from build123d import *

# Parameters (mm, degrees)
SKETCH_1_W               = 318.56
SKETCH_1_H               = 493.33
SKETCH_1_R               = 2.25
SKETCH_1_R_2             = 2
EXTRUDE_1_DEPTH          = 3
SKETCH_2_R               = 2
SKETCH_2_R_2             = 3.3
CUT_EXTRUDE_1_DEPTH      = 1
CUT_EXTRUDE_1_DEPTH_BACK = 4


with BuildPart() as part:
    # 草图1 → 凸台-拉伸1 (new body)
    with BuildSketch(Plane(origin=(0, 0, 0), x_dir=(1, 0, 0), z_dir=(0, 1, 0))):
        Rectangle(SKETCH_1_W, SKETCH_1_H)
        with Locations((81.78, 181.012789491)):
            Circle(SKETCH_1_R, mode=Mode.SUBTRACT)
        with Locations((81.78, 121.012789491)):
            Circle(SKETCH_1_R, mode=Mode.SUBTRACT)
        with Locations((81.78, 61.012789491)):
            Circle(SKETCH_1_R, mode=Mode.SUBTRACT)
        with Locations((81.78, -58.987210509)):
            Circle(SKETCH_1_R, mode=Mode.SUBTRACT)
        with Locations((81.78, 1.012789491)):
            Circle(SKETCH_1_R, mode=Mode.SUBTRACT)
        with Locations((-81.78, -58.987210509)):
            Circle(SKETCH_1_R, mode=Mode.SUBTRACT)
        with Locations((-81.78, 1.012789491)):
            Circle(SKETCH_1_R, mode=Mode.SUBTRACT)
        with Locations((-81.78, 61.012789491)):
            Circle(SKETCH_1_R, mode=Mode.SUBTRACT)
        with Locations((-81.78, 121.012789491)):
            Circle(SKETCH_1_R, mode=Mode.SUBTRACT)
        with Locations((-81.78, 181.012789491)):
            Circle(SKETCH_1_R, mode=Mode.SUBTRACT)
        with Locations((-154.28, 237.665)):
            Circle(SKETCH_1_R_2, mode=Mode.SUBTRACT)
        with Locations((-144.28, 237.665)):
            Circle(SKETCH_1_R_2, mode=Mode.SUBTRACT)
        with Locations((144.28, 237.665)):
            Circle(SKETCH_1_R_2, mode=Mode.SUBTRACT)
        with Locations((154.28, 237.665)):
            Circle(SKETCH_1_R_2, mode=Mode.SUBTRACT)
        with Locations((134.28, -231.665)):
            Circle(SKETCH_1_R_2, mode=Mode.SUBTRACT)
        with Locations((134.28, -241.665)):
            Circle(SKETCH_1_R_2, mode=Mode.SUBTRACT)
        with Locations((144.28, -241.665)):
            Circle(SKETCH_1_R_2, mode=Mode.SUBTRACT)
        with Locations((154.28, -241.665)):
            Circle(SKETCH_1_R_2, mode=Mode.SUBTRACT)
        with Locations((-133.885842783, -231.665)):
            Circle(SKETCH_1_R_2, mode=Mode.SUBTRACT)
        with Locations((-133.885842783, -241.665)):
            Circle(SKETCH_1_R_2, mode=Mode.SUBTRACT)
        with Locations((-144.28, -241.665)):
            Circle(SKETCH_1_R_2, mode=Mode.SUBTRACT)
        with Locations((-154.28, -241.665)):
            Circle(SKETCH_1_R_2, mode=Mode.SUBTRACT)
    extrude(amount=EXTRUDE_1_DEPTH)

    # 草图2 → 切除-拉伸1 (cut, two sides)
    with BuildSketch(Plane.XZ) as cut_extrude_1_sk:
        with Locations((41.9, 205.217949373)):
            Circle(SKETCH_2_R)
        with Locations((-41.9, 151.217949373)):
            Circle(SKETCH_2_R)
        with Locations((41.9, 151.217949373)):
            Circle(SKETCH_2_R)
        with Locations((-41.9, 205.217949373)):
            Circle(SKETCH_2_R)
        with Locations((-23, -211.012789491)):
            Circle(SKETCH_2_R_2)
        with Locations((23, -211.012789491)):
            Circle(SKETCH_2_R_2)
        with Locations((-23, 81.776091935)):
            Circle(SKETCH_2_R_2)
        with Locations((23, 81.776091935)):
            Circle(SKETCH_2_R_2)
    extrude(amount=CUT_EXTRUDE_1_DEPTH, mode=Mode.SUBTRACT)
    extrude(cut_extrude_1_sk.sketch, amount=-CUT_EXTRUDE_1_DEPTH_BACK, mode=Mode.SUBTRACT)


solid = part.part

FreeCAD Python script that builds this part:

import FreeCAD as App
import Part
import Sketcher
Q = App.Units.Quantity

doc = App.newDocument("Part")
body = doc.addObject("PartDesign::Body", "Body")

sketch1 = body.newObject("Sketcher::SketchObject", "Sketch")
sketch1.AttachmentSupport = (doc.getObject("XZ_Plane"), [""])
sketch1.MapMode = "FlatFace"
sketch1.addGeometry([
    Part.LineSegment(App.Vector(-159.28, -246.665, 0), App.Vector(-159.28, 246.665, 0)),
    Part.LineSegment(App.Vector(-159.28, 246.665, 0), App.Vector(159.28, 246.665, 0)),
    Part.LineSegment(App.Vector(159.28, 246.665, 0), App.Vector(159.28, -246.665, 0)),
    Part.LineSegment(App.Vector(159.28, -246.665, 0), App.Vector(-159.28, -246.665, 0)),
    Part.Circle(App.Vector(-154.28, 241.665, 0), App.Vector(0, 0, 1), 2),
    Part.Circle(App.Vector(-144.28, 241.665, 0), App.Vector(0, 0, 1), 2),
    Part.Circle(App.Vector(-133.885843, 241.665, 0), App.Vector(0, 0, 1), 2),
    Part.Circle(App.Vector(-133.885843, 231.665, 0), App.Vector(0, 0, 1), 2),
    Part.Circle(App.Vector(-81.78, 58.987211, 0), App.Vector(0, 0, 1), 2.25),
    Part.Circle(App.Vector(134.28, 241.665, 0), App.Vector(0, 0, 1), 2),
    Part.Circle(App.Vector(134.28, 231.665, 0), App.Vector(0, 0, 1), 2),
    Part.Circle(App.Vector(144.28, 241.665, 0), App.Vector(0, 0, 1), 2),
    Part.Circle(App.Vector(154.28, 241.665, 0), App.Vector(0, 0, 1), 2),
    Part.Circle(App.Vector(81.78, 58.987211, 0), App.Vector(0, 0, 1), 2.25),
    Part.Circle(App.Vector(-81.78, -1.012789, 0), App.Vector(0, 0, 1), 2.25),
    Part.Circle(App.Vector(-81.78, -61.012789, 0), App.Vector(0, 0, 1), 2.25),
    Part.Circle(App.Vector(-81.78, -121.012789, 0), App.Vector(0, 0, 1), 2.25),
    Part.Circle(App.Vector(-154.28, -237.665, 0), App.Vector(0, 0, 1), 2),
    Part.Circle(App.Vector(-144.28, -237.665, 0), App.Vector(0, 0, 1), 2),
    Part.Circle(App.Vector(-81.78, -181.012789, 0), App.Vector(0, 0, 1), 2.25),
    Part.Circle(App.Vector(81.78, -1.012789, 0), App.Vector(0, 0, 1), 2.25),
    Part.Circle(App.Vector(81.78, -61.012789, 0), App.Vector(0, 0, 1), 2.25),
    Part.Circle(App.Vector(81.78, -121.012789, 0), App.Vector(0, 0, 1), 2.25),
    Part.Circle(App.Vector(81.78, -181.012789, 0), App.Vector(0, 0, 1), 2.25),
    Part.Circle(App.Vector(144.28, -237.665, 0), App.Vector(0, 0, 1), 2),
    Part.Circle(App.Vector(154.28, -237.665, 0), App.Vector(0, 0, 1), 2),
], False)
sketch1.addConstraint([
    Sketcher.Constraint("Coincident", 0, 2, 1, 1),
    Sketcher.Constraint("Coincident", 1, 2, 2, 1),
    Sketcher.Constraint("Coincident", 2, 2, 3, 1),
    Sketcher.Constraint("Coincident", 3, 2, 0, 1),
    Sketcher.Constraint("Vertical", 0),
    Sketcher.Constraint("Horizontal", 1),
    Sketcher.Constraint("Vertical", 2),
    Sketcher.Constraint("Horizontal", 3),
    Sketcher.Constraint("Equal", 4, 5),
    Sketcher.Constraint("Equal", 5, 6),
    Sketcher.Constraint("Equal", 6, 7),
    Sketcher.Constraint("Equal", 7, 9),
    Sketcher.Constraint("Equal", 9, 10),
    Sketcher.Constraint("Equal", 10, 11),
    Sketcher.Constraint("Equal", 11, 12),
    Sketcher.Constraint("Equal", 8, 13),
    Sketcher.Constraint("Equal", 13, 14),
    Sketcher.Constraint("Equal", 14, 15),
    Sketcher.Constraint("Equal", 15, 16),
    Sketcher.Constraint("Equal", 12, 17),
    Sketcher.Constraint("Equal", 17, 18),
    Sketcher.Constraint("Equal", 16, 19),
    Sketcher.Constraint("Equal", 19, 20),
    Sketcher.Constraint("Equal", 20, 21),
    Sketcher.Constraint("Equal", 21, 22),
    Sketcher.Constraint("Equal", 22, 23),
    Sketcher.Constraint("Equal", 18, 24),
    Sketcher.Constraint("Equal", 24, 25),
    Sketcher.Constraint("Symmetric", 0, 2, 2, 2, -1, 1),
    Sketcher.Constraint("Symmetric", 5, 3, 11, 3, -2),
    Sketcher.Constraint("Symmetric", 4, 3, 12, 3, -2),
    Sketcher.Constraint("Symmetric", 8, 3, 13, 3, -2),
    Sketcher.Constraint("Symmetric", 14, 3, 20, 3, -2),
    Sketcher.Constraint("Symmetric", 15, 3, 21, 3, -2),
    Sketcher.Constraint("Symmetric", 16, 3, 22, 3, -2),
    Sketcher.Constraint("Symmetric", 19, 3, 23, 3, -2),
    Sketcher.Constraint("Symmetric", 18, 3, 24, 3, -2),
    Sketcher.Constraint("Symmetric", 17, 3, 25, 3, -2),
    Sketcher.Constraint("Horizontal", 4, 3, 5, 3),
    Sketcher.Constraint("Horizontal", 5, 3, 6, 3),
    Sketcher.Constraint("Horizontal", 6, 3, 9, 3),
    Sketcher.Constraint("Horizontal", 7, 3, 10, 3),
    Sketcher.Constraint("Horizontal", 17, 3, 18, 3),
    Sketcher.Constraint("Vertical", 6, 3, 7, 3),
    Sketcher.Constraint("Vertical", 9, 3, 10, 3),
    Sketcher.Constraint("Vertical", 8, 3, 14, 3),
    Sketcher.Constraint("Vertical", 14, 3, 15, 3),
    Sketcher.Constraint("Vertical", 15, 3, 16, 3),
    Sketcher.Constraint("Vertical", 4, 3, 17, 3),
    Sketcher.Constraint("Vertical", 5, 3, 18, 3),
    Sketcher.Constraint("Vertical", 16, 3, 19, 3),
    Sketcher.Constraint("Diameter", 4, Q("4 mm")),
    Sketcher.Constraint("Diameter", 8, Q("4.5 mm")),
    Sketcher.Constraint("DistanceX", 4, 3, 5, 3, Q("10 mm")),
    Sketcher.Constraint("DistanceY", 7, 3, 6, 3, Q("10 mm")),
    Sketcher.Constraint("DistanceX", 9, 3, 11, 3, Q("10 mm")),
    Sketcher.Constraint("DistanceY", 14, 3, 8, 3, Q("60 mm")),
    Sketcher.Constraint("DistanceY", 15, 3, 14, 3, Q("60 mm")),
    Sketcher.Constraint("DistanceY", 16, 3, 15, 3, Q("60 mm")),
    Sketcher.Constraint("DistanceY", 19, 3, 16, 3, Q("60 mm")),
    Sketcher.Constraint("DistanceX", 0, 2, 4, 3, Q("5 mm")),
    Sketcher.Constraint("DistanceY", 4, 3, 0, 2, Q("5 mm")),
    Sketcher.Constraint("DistanceY", 2, 2, 25, 3, Q("9 mm")),
    Sketcher.Constraint("DistanceX", 1, 1, 1, 2, Q("318.56 mm")),
    Sketcher.Constraint("DistanceY", 0, 1, 0, 2, Q("493.33 mm")),
    Sketcher.Constraint("DistanceX", 5, 3, 8, 3, Q("62.5 mm")),
    Sketcher.Constraint("DistanceY", -1, 1, 8, 3, Q("58.987211 mm")),
    Sketcher.Constraint("DistanceX", 6, 3, -1, 1, Q("133.885843 mm")),
])
pad1 = body.newObject("PartDesign::Pad", "Pad")
pad1.Profile = sketch1
pad1.Length = 3
pad1.Reversed = True

sketch2 = body.newObject("Sketcher::SketchObject", "Sketch001")
sketch2.AttachmentSupport = (doc.getObject("XZ_Plane"), [""])
sketch2.MapMode = "FlatFace"
sketch2.addGeometry([
    Part.Circle(App.Vector(41.9, 205.217949, 0), App.Vector(0, 0, 1), 2),
    Part.Circle(App.Vector(-41.9, 151.217949, 0), App.Vector(0, 0, 1), 2),
    Part.Circle(App.Vector(41.9, 151.217949, 0), App.Vector(0, 0, 1), 2),
    Part.Circle(App.Vector(-41.9, 205.217949, 0), App.Vector(0, 0, 1), 2),
    Part.Circle(App.Vector(-23, -211.012789, 0), App.Vector(0, 0, 1), 3.3),
    Part.Circle(App.Vector(23, -211.012789, 0), App.Vector(0, 0, 1), 3.3),
    Part.Circle(App.Vector(-23, 81.776092, 0), App.Vector(0, 0, 1), 3.3),
    Part.Circle(App.Vector(23, 81.776092, 0), App.Vector(0, 0, 1), 3.3),
], False)
sketch2.addConstraint([
    Sketcher.Constraint("Equal", 0, 1),
    Sketcher.Constraint("Equal", 1, 2),
    Sketcher.Constraint("Equal", 2, 3),
    Sketcher.Constraint("Equal", 4, 5),
    Sketcher.Constraint("Equal", 5, 6),
    Sketcher.Constraint("Equal", 6, 7),
    Sketcher.Constraint("Symmetric", 1, 3, 2, 3, -2),
    Sketcher.Constraint("Symmetric", 0, 3, 3, 3, -2),
    Sketcher.Constraint("Symmetric", 4, 3, 5, 3, -2),
    Sketcher.Constraint("Symmetric", 6, 3, 7, 3, -2),
    Sketcher.Constraint("Vertical", 0, 3, 2, 3),
    Sketcher.Constraint("Vertical", 4, 3, 6, 3),
    Sketcher.Constraint("Diameter", 0, Q("4 mm")),
    Sketcher.Constraint("Diameter", 4, Q("6.6 mm")),
    Sketcher.Constraint("DistanceX", 4, 3, -1, 1, Q("23 mm")),
    Sketcher.Constraint("DistanceY", 1, 3, 0, 3, Q("54 mm")),
    Sketcher.Constraint("DistanceX", -1, 1, 0, 3, Q("41.9 mm")),
    Sketcher.Constraint("DistanceY", -1, 1, 0, 3, Q("205.217949 mm")),
    Sketcher.Constraint("DistanceY", 4, 3, -1, 1, Q("211.012789 mm")),
    Sketcher.Constraint("DistanceY", -1, 1, 6, 3, Q("81.776092 mm")),
])
pocket1 = body.newObject("PartDesign::Pocket", "Pocket")
pocket1.Profile = sketch2
pocket1.Type = "ThroughAll"
pocket1.Midplane = True

doc.recompute()
